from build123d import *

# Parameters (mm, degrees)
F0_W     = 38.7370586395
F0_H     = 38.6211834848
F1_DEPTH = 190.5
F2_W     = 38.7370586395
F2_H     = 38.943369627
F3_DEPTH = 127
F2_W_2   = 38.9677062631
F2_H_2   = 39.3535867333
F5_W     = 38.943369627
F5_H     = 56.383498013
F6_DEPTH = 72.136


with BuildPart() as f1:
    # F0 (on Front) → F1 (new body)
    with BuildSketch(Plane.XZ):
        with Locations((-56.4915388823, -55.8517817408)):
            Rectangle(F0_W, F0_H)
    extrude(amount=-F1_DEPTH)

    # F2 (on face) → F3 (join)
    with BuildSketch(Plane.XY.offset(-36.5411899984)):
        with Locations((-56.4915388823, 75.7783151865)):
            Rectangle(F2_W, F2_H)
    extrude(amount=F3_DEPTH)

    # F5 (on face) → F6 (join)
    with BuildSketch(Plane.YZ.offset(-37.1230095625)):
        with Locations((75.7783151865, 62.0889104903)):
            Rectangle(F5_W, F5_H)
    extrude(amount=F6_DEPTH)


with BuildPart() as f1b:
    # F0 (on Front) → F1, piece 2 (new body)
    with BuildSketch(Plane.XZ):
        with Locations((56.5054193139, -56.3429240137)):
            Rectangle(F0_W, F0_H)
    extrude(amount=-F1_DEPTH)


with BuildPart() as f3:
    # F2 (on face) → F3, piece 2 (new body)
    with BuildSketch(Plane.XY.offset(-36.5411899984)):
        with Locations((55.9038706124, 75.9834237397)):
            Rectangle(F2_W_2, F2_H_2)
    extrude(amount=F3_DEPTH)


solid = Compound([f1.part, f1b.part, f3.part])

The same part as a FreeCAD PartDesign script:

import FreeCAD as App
import Part
import Sketcher

V = App.Vector
Q = App.Units.Quantity

doc = App.newDocument("Part")
body = doc.addObject("PartDesign::Body", "Body")

sketch1 = body.newObject("Sketcher::SketchObject", "Sketch")
sketch1.AttachmentSupport = (doc.getObject("XZ_Plane"), [""])
sketch1.MapMode = "FlatFace"
sketch1.addGeometry([
    Part.LineSegment(V(-76, -37, 0), V(-76, -75, 0)),
    Part.LineSegment(V(-76, -75, 0), V(-37, -75, 0)),
    Part.LineSegment(V(-37, -75, 0), V(-37, -37, 0)),
    Part.LineSegment(V(-37, -37, 0), V(-76, -37, 0)),
], False)
sketch1.addConstraint([
    Sketcher.Constraint("Coincident", 0, 2, 1, 1),
    Sketcher.Constraint("Coincident", 1, 2, 2, 1),
    Sketcher.Constraint("Coincident", 2, 2, 3, 1),
    Sketcher.Constraint("Coincident", 3, 2, 0, 1),
    Sketcher.Constraint("Vertical", 0),
    Sketcher.Constraint("Horizontal", 1),
    Sketcher.Constraint("Vertical", 2),
    Sketcher.Constraint("Horizontal", 3),
    Sketcher.Constraint("DistanceX", 1, 1, 1, 2, Q("38.737059 mm")),
    Sketcher.Constraint("DistanceY", 0, 2, 0, 1, Q("38.621183 mm")),
    Sketcher.Constraint("DistanceX", 0, 2, -1, 1, Q("75.860068 mm")),
    Sketcher.Constraint("DistanceY", 2, 2, -1, 1, Q("36.54119 mm")),
])
pad1 = body.newObject("PartDesign::Pad", "Pad")
pad1.Profile = sketch1
pad1.Length = Q("7.5 in")
pad1.Reversed = True

sketch2 = body.newObject("Sketcher::SketchObject", "Sketch001")
sketch2.AttachmentSupport = (doc.getObject("XY_Plane"), [""])
sketch2.MapMode = "FlatFace"
sketch2.AttachmentOffset = App.Placement(V(0, 0, -36.54119), App.Rotation())
sketch2.addGeometry([
    Part.LineSegment(V(-76, 95, 0), V(-76, 56, 0)),
    Part.LineSegment(V(-76, 56, 0), V(-37, 56, 0)),
    Part.LineSegment(V(-37, 56, 0), V(-37, 95, 0)),
    Part.LineSegment(V(-37, 95, 0), V(-76, 95, 0)),
], False)
sketch2.addConstraint([
    Sketcher.Constraint("Coincident", 0, 2, 1, 1),
    Sketcher.Constraint("Coincident", 1, 2, 2, 1),
    Sketcher.Constraint("Coincident", 2, 2, 3, 1),
    Sketcher.Constraint("Coincident", 3, 2, 0, 1),
    Sketcher.Constraint("Vertical", 0),
    Sketcher.Constraint("Horizontal", 1),
    Sketcher.Constraint("Vertical", 2),
    Sketcher.Constraint("Horizontal", 3),
    Sketcher.Constraint("DistanceY", -1, 1, 2, 2, Q("3.75 in")),
    Sketcher.Constraint("DistanceX", 1, 1, 1, 2, Q("38.737059 mm")),
    Sketcher.Constraint("DistanceY", 0, 2, 0, 1, Q("38.94337 mm")),
    Sketcher.Constraint("DistanceX", 0, 2, -1, 1, Q("75.860068 mm")),
])
pad2 = body.newObject("PartDesign::Pad", "Pad001")
pad2.Profile = sketch2
pad2.Length = Q("5 in")

sketch3 = body.newObject("Sketcher::SketchObject", "Sketch002")
sketch3.AttachmentSupport = (doc.getObject("YZ_Plane"), [""])
sketch3.MapMode = "FlatFace"
sketch3.AttachmentOffset = App.Placement(V(0, 0, -37.12301), App.Rotation())
sketch3.addGeometry([
    Part.LineSegment(V(56, 90, 0), V(56, 34, 0)),
    Part.LineSegment(V(56, 34, 0), V(95, 34, 0)),
    Part.LineSegment(V(95, 34, 0), V(95, 90, 0)),
    Part.LineSegment(V(95, 90, 0), V(56, 90, 0)),
], False)
sketch3.addConstraint([
    Sketcher.Constraint("Coincident", 0, 2, 1, 1),
    Sketcher.Constraint("Coincident", 1, 2, 2, 1),
    Sketcher.Constraint("Coincident", 2, 2, 3, 1),
    Sketcher.Constraint("Coincident", 3, 2, 0, 1),
    Sketcher.Constraint("Vertical", 0),
    Sketcher.Constraint("Horizontal", 1),
    Sketcher.Constraint("Vertical", 2),
    Sketcher.Constraint("Horizontal", 3),
    Sketcher.Constraint("DistanceX", -1, 1, 1, 2, Q("3.75 in")),
    Sketcher.Constraint("DistanceY", 0, 2, 0, 1, Q("56.383498 mm")),
    Sketcher.Constraint("DistanceX", 1, 1, 1, 2, Q("38.94337 mm")),
    Sketcher.Constraint("DistanceY", -1, 1, 0, 2, Q("33.897161 mm")),
])
pad3 = body.newObject("PartDesign::Pad", "Pad002")
pad3.Profile = sketch3
pad3.Length = Q("2.84 in")
body2 = doc.addObject("PartDesign::Body", "Body001")

sketch4 = body2.newObject("Sketcher::SketchObject", "Sketch003")
sketch4.AttachmentSupport = (doc.getObject("XZ_Plane001"), [""])
sketch4.MapMode = "FlatFace"
sketch4.addGeometry([
    Part.LineSegment(V(37, -37, 0), V(37, -76, 0)),
    Part.LineSegment(V(37, -76, 0), V(76, -76, 0)),
    Part.LineSegment(V(76, -76, 0), V(76, -37, 0)),
    Part.LineSegment(V(76, -37, 0), V(37, -37, 0)),
], False)
sketch4.addConstraint([
    Sketcher.Constraint("Coincident", 0, 2, 1, 1),
    Sketcher.Constraint("Coincident", 1, 2, 2, 1),
    Sketcher.Constraint("Coincident", 2, 2, 3, 1),
    Sketcher.Constraint("Coincident", 3, 2, 0, 1),
    Sketcher.Constraint("Vertical", 0),
    Sketcher.Constraint("Horizontal", 1),
    Sketcher.Constraint("Vertical", 2),
    Sketcher.Constraint("Horizontal", 3),
    Sketcher.Constraint("DistanceX", 1, 1, 1, 2, Q("38.737059 mm")),
    Sketcher.Constraint("DistanceY", 0, 2, 0, 1, Q("38.621183 mm")),
    Sketcher.Constraint("DistanceX", -1, 1, 0, 2, Q("37.13689 mm")),
    Sketcher.Constraint("DistanceY", 0, 2, -1, 1, Q("75.653516 mm")),
])
pad4 = body2.newObject("PartDesign::Pad", "Pad003")
pad4.Profile = sketch4
pad4.Length = Q("7.5 in")
pad4.Reversed = True
body3 = doc.addObject("PartDesign::Body", "Body002")

sketch5 = body3.newObject("Sketcher::SketchObject", "Sketch004")
sketch5.AttachmentSupport = (doc.getObject("XY_Plane002"), [""])
sketch5.MapMode = "FlatFace"
sketch5.AttachmentOffset = App.Placement(V(0, 0, -36.54119), App.Rotation())
sketch5.addGeometry([
    Part.LineSegment(V(36, 96, 0), V(36, 56, 0)),
    Part.LineSegment(V(36, 56, 0), V(75, 56, 0)),
    Part.LineSegment(V(75, 56, 0), V(75, 96, 0)),
    Part.LineSegment(V(75, 96, 0), V(36, 96, 0)),
], False)
sketch5.addConstraint([
    Sketcher.Constraint("Coincident", 0, 2, 1, 1),
    Sketcher.Constraint("Coincident", 1, 2, 2, 1),
    Sketcher.Constraint("Coincident", 2, 2, 3, 1),
    Sketcher.Constraint("Coincident", 3, 2, 0, 1),
    Sketcher.Constraint("Vertical", 0),
    Sketcher.Constraint("Horizontal", 1),
    Sketcher.Constraint("Vertical", 2),
    Sketcher.Constraint("Horizontal", 3),
    Sketcher.Constraint("DistanceX", 1, 1, 1, 2, Q("38.967706 mm")),
    Sketcher.Constraint("DistanceY", 0, 2, 0, 1, Q("39.353587 mm")),
    Sketcher.Constraint("DistanceY", -1, 1, 0, 2, Q("56.30663 mm")),
    Sketcher.Constraint("DistanceX", -1, 1, 0, 2, Q("36.420017 mm")),
])
pad5 = body3.newObject("PartDesign::Pad", "Pad004")
pad5.Profile = sketch5
pad5.Length = Q("5 in")

doc.recompute()
